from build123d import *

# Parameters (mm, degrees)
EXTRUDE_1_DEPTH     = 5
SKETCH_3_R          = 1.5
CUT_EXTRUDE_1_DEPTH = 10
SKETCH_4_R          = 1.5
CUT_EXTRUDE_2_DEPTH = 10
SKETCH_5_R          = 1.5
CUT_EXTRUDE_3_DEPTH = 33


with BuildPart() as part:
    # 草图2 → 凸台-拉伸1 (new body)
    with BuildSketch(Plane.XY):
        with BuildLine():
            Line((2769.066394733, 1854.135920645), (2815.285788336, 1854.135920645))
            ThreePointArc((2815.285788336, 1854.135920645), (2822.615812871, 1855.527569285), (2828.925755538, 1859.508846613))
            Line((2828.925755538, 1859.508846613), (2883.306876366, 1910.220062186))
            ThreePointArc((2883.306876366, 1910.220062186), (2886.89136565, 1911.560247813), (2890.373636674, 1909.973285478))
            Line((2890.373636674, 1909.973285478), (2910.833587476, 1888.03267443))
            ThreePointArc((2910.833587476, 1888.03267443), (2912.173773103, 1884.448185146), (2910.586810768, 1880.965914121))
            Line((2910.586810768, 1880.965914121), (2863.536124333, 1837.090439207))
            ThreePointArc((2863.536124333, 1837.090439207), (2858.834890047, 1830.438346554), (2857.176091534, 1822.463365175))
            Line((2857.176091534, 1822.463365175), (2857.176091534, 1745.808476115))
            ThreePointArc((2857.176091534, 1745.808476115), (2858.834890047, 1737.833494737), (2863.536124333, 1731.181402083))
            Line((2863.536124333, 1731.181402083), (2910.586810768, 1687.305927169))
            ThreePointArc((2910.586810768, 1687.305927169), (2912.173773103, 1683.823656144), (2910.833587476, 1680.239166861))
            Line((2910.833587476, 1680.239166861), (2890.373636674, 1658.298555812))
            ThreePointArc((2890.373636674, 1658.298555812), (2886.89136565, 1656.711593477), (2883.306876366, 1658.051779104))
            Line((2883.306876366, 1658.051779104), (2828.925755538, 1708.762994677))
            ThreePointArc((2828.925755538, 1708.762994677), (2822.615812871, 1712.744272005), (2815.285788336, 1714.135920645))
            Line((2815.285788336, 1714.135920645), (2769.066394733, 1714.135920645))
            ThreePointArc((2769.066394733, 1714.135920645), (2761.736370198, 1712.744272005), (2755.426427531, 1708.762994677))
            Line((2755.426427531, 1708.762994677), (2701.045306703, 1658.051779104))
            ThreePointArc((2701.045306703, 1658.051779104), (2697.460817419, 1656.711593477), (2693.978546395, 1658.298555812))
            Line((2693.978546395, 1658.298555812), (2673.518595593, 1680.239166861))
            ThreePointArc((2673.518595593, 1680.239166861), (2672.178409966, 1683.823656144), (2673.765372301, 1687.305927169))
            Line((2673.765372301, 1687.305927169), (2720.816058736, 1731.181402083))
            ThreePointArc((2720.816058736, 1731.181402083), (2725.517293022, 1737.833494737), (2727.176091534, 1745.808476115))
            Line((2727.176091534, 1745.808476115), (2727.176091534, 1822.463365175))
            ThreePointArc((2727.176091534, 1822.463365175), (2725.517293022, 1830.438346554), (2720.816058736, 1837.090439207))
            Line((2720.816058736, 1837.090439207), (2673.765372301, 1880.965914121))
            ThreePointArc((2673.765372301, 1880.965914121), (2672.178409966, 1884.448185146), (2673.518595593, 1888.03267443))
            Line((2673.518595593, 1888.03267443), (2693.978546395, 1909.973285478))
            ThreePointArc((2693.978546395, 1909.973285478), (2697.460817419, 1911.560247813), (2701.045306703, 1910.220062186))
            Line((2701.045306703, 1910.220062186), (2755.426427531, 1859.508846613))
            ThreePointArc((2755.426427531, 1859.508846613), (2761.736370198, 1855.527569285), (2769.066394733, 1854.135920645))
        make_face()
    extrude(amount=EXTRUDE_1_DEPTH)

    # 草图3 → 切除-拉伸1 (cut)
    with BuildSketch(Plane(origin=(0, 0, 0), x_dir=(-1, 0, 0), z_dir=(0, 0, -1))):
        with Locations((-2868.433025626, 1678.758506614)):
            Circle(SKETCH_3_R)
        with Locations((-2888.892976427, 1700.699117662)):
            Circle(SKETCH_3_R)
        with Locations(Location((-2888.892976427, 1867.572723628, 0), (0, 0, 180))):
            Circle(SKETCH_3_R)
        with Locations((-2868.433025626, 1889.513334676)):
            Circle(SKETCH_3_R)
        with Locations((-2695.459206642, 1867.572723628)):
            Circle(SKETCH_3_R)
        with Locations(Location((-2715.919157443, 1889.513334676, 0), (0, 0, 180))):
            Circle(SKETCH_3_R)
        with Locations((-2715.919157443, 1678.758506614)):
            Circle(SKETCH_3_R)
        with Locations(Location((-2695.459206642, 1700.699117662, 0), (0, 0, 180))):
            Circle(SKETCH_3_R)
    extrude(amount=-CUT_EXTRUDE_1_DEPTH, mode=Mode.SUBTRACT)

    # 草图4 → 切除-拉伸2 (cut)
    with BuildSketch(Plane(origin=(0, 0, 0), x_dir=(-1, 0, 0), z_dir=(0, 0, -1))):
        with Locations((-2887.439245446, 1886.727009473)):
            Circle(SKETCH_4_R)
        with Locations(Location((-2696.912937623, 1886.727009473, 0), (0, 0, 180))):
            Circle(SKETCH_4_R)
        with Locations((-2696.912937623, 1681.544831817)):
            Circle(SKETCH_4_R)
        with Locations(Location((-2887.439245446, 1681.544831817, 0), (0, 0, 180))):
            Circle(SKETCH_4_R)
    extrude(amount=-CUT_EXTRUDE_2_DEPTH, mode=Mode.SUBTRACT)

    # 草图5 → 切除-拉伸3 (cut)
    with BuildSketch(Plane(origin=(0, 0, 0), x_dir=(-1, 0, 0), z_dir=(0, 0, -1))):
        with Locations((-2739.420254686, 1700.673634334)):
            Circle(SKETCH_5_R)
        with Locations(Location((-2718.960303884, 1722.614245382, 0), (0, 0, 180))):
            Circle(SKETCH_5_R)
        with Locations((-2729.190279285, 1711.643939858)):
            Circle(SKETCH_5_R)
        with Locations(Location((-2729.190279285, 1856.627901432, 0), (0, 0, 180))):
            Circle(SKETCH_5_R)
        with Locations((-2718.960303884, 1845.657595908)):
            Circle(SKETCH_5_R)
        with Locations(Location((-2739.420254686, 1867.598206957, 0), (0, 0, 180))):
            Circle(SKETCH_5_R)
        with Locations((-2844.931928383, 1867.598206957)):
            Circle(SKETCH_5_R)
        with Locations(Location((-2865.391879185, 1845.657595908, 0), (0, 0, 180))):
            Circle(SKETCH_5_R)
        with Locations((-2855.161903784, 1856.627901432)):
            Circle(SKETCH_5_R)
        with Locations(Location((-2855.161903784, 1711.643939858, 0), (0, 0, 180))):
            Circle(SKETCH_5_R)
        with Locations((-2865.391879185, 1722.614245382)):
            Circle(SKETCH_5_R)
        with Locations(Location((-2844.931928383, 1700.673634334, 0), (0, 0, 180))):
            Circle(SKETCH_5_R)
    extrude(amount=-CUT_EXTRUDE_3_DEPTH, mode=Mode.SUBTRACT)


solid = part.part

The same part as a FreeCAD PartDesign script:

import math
import FreeCAD as App
import Part
import Sketcher
Q = App.Units.Quantity

doc = App.newDocument("Part")
params = doc.addObject("Spreadsheet::Sheet", "Params")
for row, (alias, value) in enumerate([
    ("sketch1_radius", "20 mm"),
    ("sketch1_radius2", "5 mm"),
    ("sketch1_length", "30 mm"),
    ("pad1_length", "5 mm"),
    ("sketch2_diameter", "3 mm"),
    ("pocket1_length", "10 mm"),
    ("sketch3_diameter", "3 mm"),
    ("pocket2_length", "10 mm"),
    ("sketch4_diameter", "3 mm"),
    ("pocket3_length", "33 mm"),
], start=1):
    params.set(f"A{row}", alias)
    params.set(f"B{row}", "=" + value)
    params.setAlias(f"B{row}", alias)

body = doc.addObject("PartDesign::Body", "Body")

# Sketch on XY plane
sketch1 = doc.addObject("Sketcher::SketchObject", "Sketch")
body.addObject(sketch1)
sketch1.AttachmentSupport = (doc.XY_Plane, [""])
sketch1.MapMode = "FlatFace"
sketch1.addGeometry([
    Part.LineSegment(App.Vector(2815.3, 1854.1, 0), App.Vector(2769.1, 1854.1, 0)),  # 0
    Part.ArcOfCircle(Part.Circle(App.Vector(2769.1, 1874.1, 0), App.Vector(0, 0, 1), 20), math.radians(-133), math.radians(-90)),  # 1
    Part.LineSegment(App.Vector(2755.4, 1859.5, 0), App.Vector(2701, 1910.2, 0)),  # 2
    Part.ArcOfCircle(Part.Circle(App.Vector(2697.6, 1906.6, 0), App.Vector(0, 0, 1), 5), math.radians(47), math.radians(137)),  # 3
    Part.LineSegment(App.Vector(2694, 1910, 0), App.Vector(2673.5, 1888, 0)),  # 4
    Part.ArcOfCircle(Part.Circle(App.Vector(2677.2, 1884.6, 0), App.Vector(0, 0, 1), 5), math.radians(137), math.radians(227)),  # 5
    Part.LineSegment(App.Vector(2673.8, 1881, 0), App.Vector(2720.8, 1837.1, 0)),  # 6
    Part.ArcOfCircle(Part.Circle(App.Vector(2707.2, 1822.5, 0), App.Vector(0, 0, 1), 20), math.radians(0), math.radians(47)),  # 7
    Part.LineSegment(App.Vector(2727.2, 1822.5, 0), App.Vector(2727.2, 1745.8, 0)),  # 8
    Part.ArcOfCircle(Part.Circle(App.Vector(2707.2, 1745.8, 0), App.Vector(0, 0, 1), 20), math.radians(-47), math.radians(0)),  # 9
    Part.LineSegment(App.Vector(2720.8, 1731.2, 0), App.Vector(2673.8, 1687.3, 0)),  # 10
    Part.ArcOfCircle(Part.Circle(App.Vector(2677.2, 1683.6, 0), App.Vector(0, 0, 1), 5), math.radians(133), math.radians(223)),  # 11
    Part.LineSegment(App.Vector(2673.5, 1680.2, 0), App.Vector(2694, 1658.3, 0)),  # 12
    Part.ArcOfCircle(Part.Circle(App.Vector(2697.6, 1661.7, 0), App.Vector(0, 0, 1), 5), math.radians(-137), math.radians(-47)),  # 13
    Part.LineSegment(App.Vector(2701, 1658.1, 0), App.Vector(2755.4, 1708.8, 0)),  # 14
    Part.ArcOfCircle(Part.Circle(App.Vector(2769.1, 1694.1, 0), App.Vector(0, 0, 1), 20), math.radians(90), math.radians(133)),  # 15
    Part.LineSegment(App.Vector(2769.1, 1714.1, 0), App.Vector(2815.3, 1714.1, 0)),  # 16
    Part.ArcOfCircle(Part.Circle(App.Vector(2815.3, 1694.1, 0), App.Vector(0, 0, 1), 20), math.radians(47), math.radians(90)),  # 17
    Part.LineSegment(App.Vector(2828.9, 1708.8, 0), App.Vector(2883.3, 1658.1, 0)),  # 18
    Part.ArcOfCircle(Part.Circle(App.Vector(2886.7, 1661.7, 0), App.Vector(0, 0, 1), 5), math.radians(-133), math.radians(-43)),  # 19
    Part.LineSegment(App.Vector(2890.4, 1658.3, 0), App.Vector(2910.8, 1680.2, 0)),  # 20
    Part.ArcOfCircle(Part.Circle(App.Vector(2907.2, 1683.6, 0), App.Vector(0, 0, 1), 5), math.radians(-43), math.radians(47)),  # 21
    Part.LineSegment(App.Vector(2910.6, 1687.3, 0), App.Vector(2863.5, 1731.2, 0)),  # 22
    Part.ArcOfCircle(Part.Circle(App.Vector(2877.2, 1745.8, 0), App.Vector(0, 0, 1), 20), math.radians(-180), math.radians(-133)),  # 23
    Part.LineSegment(App.Vector(2857.2, 1745.8, 0), App.Vector(2857.2, 1822.5, 0)),  # 24
    Part.ArcOfCircle(Part.Circle(App.Vector(2877.2, 1822.5, 0), App.Vector(0, 0, 1), 20), math.radians(133), math.radians(180)),  # 25
    Part.LineSegment(App.Vector(2863.5, 1837.1, 0), App.Vector(2910.6, 1881, 0)),  # 26
    Part.ArcOfCircle(Part.Circle(App.Vector(2907.2, 1884.6, 0), App.Vector(0, 0, 1), 5), math.radians(-47), math.radians(43)),  # 27
    Part.LineSegment(App.Vector(2910.8, 1888, 0), App.Vector(2890.4, 1910, 0)),  # 28
    Part.ArcOfCircle(Part.Circle(App.Vector(2886.7, 1906.6, 0), App.Vector(0, 0, 1), 5), math.radians(43), math.radians(133)),  # 29
    Part.LineSegment(App.Vector(2883.3, 1910.2, 0), App.Vector(2828.9, 1859.5, 0)),  # 30
    Part.ArcOfCircle(Part.Circle(App.Vector(2815.3, 1874.1, 0), App.Vector(0, 0, 1), 20), math.radians(-90), math.radians(-47)),  # 31
], False)
sketch1.addConstraint([
    Sketcher.Constraint("Tangent", 0, 2, 1, 2),
    Sketcher.Constraint("Tangent", 1, 1, 2, 1),
    Sketcher.Constraint("Tangent", 2, 2, 3, 1),
    Sketcher.Constraint("Tangent", 3, 2, 4, 1),
    Sketcher.Constraint("Tangent", 4, 2, 5, 1),
    Sketcher.Constraint("Tangent", 5, 2, 6, 1),
    Sketcher.Constraint("Tangent", 6, 2, 7, 2),
    Sketcher.Constraint("Tangent", 7, 1, 8, 1),
    Sketcher.Constraint("Tangent", 8, 2, 9, 2),
    Sketcher.Constraint("Tangent", 9, 1, 10, 1),
    Sketcher.Constraint("Tangent", 10, 2, 11, 1),
    Sketcher.Constraint("Tangent", 11, 2, 12, 1),
    Sketcher.Constraint("Tangent", 12, 2, 13, 1),
    Sketcher.Constraint("Tangent", 13, 2, 14, 1),
    Sketcher.Constraint("Tangent", 14, 2, 15, 2),
    Sketcher.Constraint("Tangent", 15, 1, 16, 1),
    Sketcher.Constraint("Tangent", 16, 2, 17, 2),
    Sketcher.Constraint("Tangent", 17, 1, 18, 1),
    Sketcher.Constraint("Tangent", 18, 2, 19, 1),
    Sketcher.Constraint("Tangent", 19, 2, 20, 1),
    Sketcher.Constraint("Tangent", 20, 2, 21, 1),
    Sketcher.Constraint("Tangent", 21, 2, 22, 1),
    Sketcher.Constraint("Tangent", 22, 2, 23, 2),
    Sketcher.Constraint("Tangent", 23, 1, 24, 1),
    Sketcher.Constraint("Tangent", 24, 2, 25, 2),
    Sketcher.Constraint("Tangent", 25, 1, 26, 1),
    Sketcher.Constraint("Tangent", 26, 2, 27, 1),
    Sketcher.Constraint("Tangent", 27, 2, 28, 1),
    Sketcher.Constraint("Tangent", 28, 2, 29, 1),
    Sketcher.Constraint("Tangent", 29, 2, 30, 1),
    Sketcher.Constraint("Tangent", 30, 2, 31, 2),
    Sketcher.Constraint("Tangent", 31, 1, 0, 1),
    Sketcher.Constraint("Horizontal", 0),
    Sketcher.Constraint("Vertical", 8),
    Sketcher.Constraint("Horizontal", 16),
    Sketcher.Constraint("Vertical", 24),
    Sketcher.Constraint("Equal", 3, 5),
    Sketcher.Constraint("Equal", 1, 7),
    Sketcher.Constraint("Equal", 7, 9),
    Sketcher.Constraint("Equal", 5, 11),
    Sketcher.Constraint("Equal", 11, 13),
    Sketcher.Constraint("Equal", 9, 15),
    Sketcher.Constraint("Equal", 15, 17),
    Sketcher.Constraint("Equal", 13, 19),
    Sketcher.Constraint("Equal", 19, 21),
    Sketcher.Constraint("Equal", 17, 23),
    Sketcher.Constraint("Equal", 23, 25),
    Sketcher.Constraint("Equal", 21, 27),
    Sketcher.Constraint("Equal", 27, 29),
    Sketcher.Constraint("Equal", 25, 31),
    Sketcher.Constraint("Perpendicular", 2, 4),
    Sketcher.Constraint("Perpendicular", 4, 6),
    Sketcher.Constraint("Perpendicular", 10, 12),
    Sketcher.Constraint("Perpendicular", 12, 14),
    Sketcher.Constraint("Parallel", 6, 18),
    Sketcher.Constraint("Perpendicular", 18, 20),
    Sketcher.Constraint("Perpendicular", 20, 22),
    Sketcher.Constraint("Parallel", 14, 26),
    Sketcher.Constraint("Perpendicular", 26, 28),
    Sketcher.Constraint("Perpendicular", 28, 30),
    Sketcher.Constraint("Horizontal", 13, 3, 19, 3),
    Sketcher.Constraint("Horizontal", 11, 3, 21, 3),
    Sketcher.Constraint("Horizontal", 9, 3, 23, 3),
    Sketcher.Constraint("Horizontal", 7, 3, 25, 3),
    Sketcher.Constraint("Horizontal", 5, 3, 27, 3),
    Sketcher.Constraint("Horizontal", 3, 3, 29, 3),
    Sketcher.Constraint("Horizontal", 14, 2, 17, 1),
    Sketcher.Constraint("Vertical", 5, 3, 11, 3),
    Sketcher.Constraint("Vertical", 3, 3, 13, 3),
    Sketcher.Constraint("Vertical", 1, 3, 15, 3),
    Sketcher.Constraint("Radius", 1, Q("20 mm")),
    Sketcher.Constraint("Radius", 3, Q("5 mm")),
    Sketcher.Constraint("Angle", 2, Q("137 deg")),
    Sketcher.Constraint("Distance", 4, Q("30 mm")),
    Sketcher.Constraint("DistanceY", 15, 3, 1, 3, Q("180 mm")),
    Sketcher.Constraint("Distance", 2, Q("74.3568 mm")),
    Sketcher.Constraint("DistanceY", 8, 2, 8, 1, Q("76.654889 mm")),
    Sketcher.Constraint("DistanceX", 0, 2, 0, 1, Q("46.219394 mm")),
    Sketcher.Constraint("DistanceY", -1, 1, 1, 3, Q("1874.135921 mm")),
    Sketcher.Constraint("DistanceX", -1, 1, 7, 3, Q("2707.176092 mm")),
])
sketch1.setExpression("Constraints[70]", "Params.sketch1_radius")
sketch1.setExpression("Constraints[71]", "Params.sketch1_radius2")
sketch1.setExpression("Constraints[73]", "Params.sketch1_length")
pad1 = doc.addObject("PartDesign::Pad", "Pad")
body.addObject(pad1)
pad1.Profile = sketch1
pad1.setExpression("Length", "Params.pad1_length")

# Sketch on XY plane
sketch2 = doc.addObject("Sketcher::SketchObject", "Sketch001")
body.addObject(sketch2)
sketch2.AttachmentSupport = (doc.XY_Plane, [""])
sketch2.MapMode = "FlatFace"
sketch2.addGeometry([
    Part.Circle(App.Vector(2868.4, 1678.8, 0), App.Vector(0, 0, 1), 1.5),  # 0
    Part.Circle(App.Vector(2888.9, 1700.7, 0), App.Vector(0, 0, 1), 1.5),  # 1
    Part.Circle(App.Vector(2888.9, 1867.6, 0), App.Vector(0, 0, 1), 1.5),  # 2
    Part.Circle(App.Vector(2868.4, 1889.5, 0), App.Vector(0, 0, 1), 1.5),  # 3
    Part.Circle(App.Vector(2695.5, 1867.6, 0), App.Vector(0, 0, 1), 1.5),  # 4
    Part.Circle(App.Vector(2715.9, 1889.5, 0), App.Vector(0, 0, 1), 1.5),  # 5
    Part.Circle(App.Vector(2715.9, 1678.8, 0), App.Vector(0, 0, 1), 1.5),  # 6
    Part.Circle(App.Vector(2695.5, 1700.7, 0), App.Vector(0, 0, 1), 1.5),  # 7
], False)
sketch2.addConstraint([
    Sketcher.Constraint("Equal", 0, 1),
    Sketcher.Constraint("Equal", 1, 2),
    Sketcher.Constraint("Equal", 2, 3),
    Sketcher.Constraint("Equal", 3, 4),
    Sketcher.Constraint("Equal", 4, 5),
    Sketcher.Constraint("Equal", 5, 6),
    Sketcher.Constraint("Equal", 6, 7),
    Sketcher.Constraint("Horizontal", 2, 3, 4, 3),
    Sketcher.Constraint("Horizontal", 3, 3, 5, 3),
    Sketcher.Constraint("Horizontal", 0, 3, 6, 3),
    Sketcher.Constraint("Horizontal", 1, 3, 7, 3),
    Sketcher.Constraint("Vertical", 1, 3, 2, 3),
    Sketcher.Constraint("Vertical", 0, 3, 3, 3),
    Sketcher.Constraint("Vertical", 5, 3, 6, 3),
    Sketcher.Constraint("Vertical", 4, 3, 7, 3),
    Sketcher.Constraint("Diameter", 0, Q("3 mm")),
    Sketcher.Constraint("DistanceX", 0, 3, 1, 3, Q("20.459951 mm")),
    Sketcher.Constraint("DistanceY", 0, 3, 1, 3, Q("21.940611 mm")),
    Sketcher.Constraint("DistanceY", 2, 3, 3, 3, Q("21.940611 mm")),
    Sketcher.Constraint("DistanceY", 0, 3, 3, 3, Q("210.754828 mm")),
    Sketcher.Constraint("DistanceX", 4, 3, 3, 3, Q("172.973819 mm")),
    Sketcher.Constraint("DistanceX", 4, 3, 5, 3, Q("20.459951 mm")),
    Sketcher.Constraint("DistanceX", -1, 1, 0, 3, Q("2868.433026 mm")),
    Sketcher.Constraint("DistanceY", -1, 1, 0, 3, Q("1678.758507 mm")),
])
sketch2.setExpression("Constraints[15]", "Params.sketch2_diameter")
pocket1 = doc.addObject("PartDesign::Pocket", "Pocket")
body.addObject(pocket1)
pocket1.Profile = sketch2
pocket1.setExpression("Length", "Params.pocket1_length")
pocket1.Reversed = True

# Sketch on XY plane
sketch3 = doc.addObject("Sketcher::SketchObject", "Sketch002")
body.addObject(sketch3)
sketch3.AttachmentSupport = (doc.XY_Plane, [""])
sketch3.MapMode = "FlatFace"
sketch3.addGeometry([
    Part.Circle(App.Vector(2887.4, 1886.7, 0), App.Vector(0, 0, 1), 1.5),
    Part.Circle(App.Vector(2696.9, 1886.7, 0), App.Vector(0, 0, 1), 1.5),
    Part.Circle(App.Vector(2696.9, 1681.5, 0), App.Vector(0, 0, 1), 1.5),
    Part.Circle(App.Vector(2887.4, 1681.5, 0), App.Vector(0, 0, 1), 1.5),
], False)
sketch3.addConstraint([
    Sketcher.Constraint("Equal", 0, 1),
    Sketcher.Constraint("Equal", 1, 2),
    Sketcher.Constraint("Equal", 2, 3),
    Sketcher.Constraint("Horizontal", 0, 3, 1, 3),
    Sketcher.Constraint("Horizontal", 2, 3, 3, 3),
    Sketcher.Constraint("Vertical", 1, 3, 2, 3),
    Sketcher.Constraint("Vertical", 0, 3, 3, 3),
    Sketcher.Constraint("Diameter", 0, Q("3 mm")),
    Sketcher.Constraint("DistanceY", -1, 1, 0, 3, Q("1886.727009 mm")),
    Sketcher.Constraint("DistanceY", -1, 1, 2, 3, Q("1681.544832 mm")),
    Sketcher.Constraint("DistanceX", -1, 1, 0, 3, Q("2887.439245 mm")),
    Sketcher.Constraint("DistanceX", -1, 1, 1, 3, Q("2696.912938 mm")),
])
sketch3.setExpression("Constraints[7]", "Params.sketch3_diameter")
pocket2 = doc.addObject("PartDesign::Pocket", "Pocket001")
body.addObject(pocket2)
pocket2.Profile = sketch3
pocket2.setExpression("Length", "Params.pocket2_length")
pocket2.Reversed = True

# Sketch on XY plane
sketch4 = doc.addObject("Sketcher::SketchObject", "Sketch003")
body.addObject(sketch4)
sketch4.AttachmentSupport = (doc.XY_Plane, [""])
sketch4.MapMode = "FlatFace"
sketch4.addGeometry([
    Part.Circle(App.Vector(2739.4, 1700.7, 0), App.Vector(0, 0, 1), 1.5),  # 0
    Part.Circle(App.Vector(2719, 1722.6, 0), App.Vector(0, 0, 1), 1.5),  # 1
    Part.Circle(App.Vector(2729.2, 1711.6, 0), App.Vector(0, 0, 1), 1.5),  # 2
    Part.Circle(App.Vector(2729.2, 1856.6, 0), App.Vector(0, 0, 1), 1.5),  # 3
    Part.Circle(App.Vector(2719, 1845.7, 0), App.Vector(0, 0, 1), 1.5),  # 4
    Part.Circle(App.Vector(2739.4, 1867.6, 0), App.Vector(0, 0, 1), 1.5),  # 5
    Part.Circle(App.Vector(2844.9, 1867.6, 0), App.Vector(0, 0, 1), 1.5),  # 6
    Part.Circle(App.Vector(2865.4, 1845.7, 0), App.Vector(0, 0, 1), 1.5),  # 7
    Part.Circle(App.Vector(2855.2, 1856.6, 0), App.Vector(0, 0, 1), 1.5),  # 8
    Part.Circle(App.Vector(2855.2, 1711.6, 0), App.Vector(0, 0, 1), 1.5),  # 9
    Part.Circle(App.Vector(2865.4, 1722.6, 0), App.Vector(0, 0, 1), 1.5),  # 10
    Part.Circle(App.Vector(2844.9, 1700.7, 0), App.Vector(0, 0, 1), 1.5),  # 11
], False)
sketch4.addConstraint([
    Sketcher.Constraint("Equal", 0, 1),
    Sketcher.Constraint("Equal", 1, 2),
    Sketcher.Constraint("Equal", 2, 3),
    Sketcher.Constraint("Equal", 3, 4),
    Sketcher.Constraint("Equal", 4, 5),
    Sketcher.Constraint("Equal", 5, 6),
    Sketcher.Constraint("Equal", 6, 7),
    Sketcher.Constraint("Equal", 7, 8),
    Sketcher.Constraint("Equal", 8, 9),
    Sketcher.Constraint("Equal", 9, 10),
    Sketcher.Constraint("Equal", 10, 11),
    Sketcher.Constraint("Horizontal", 5, 3, 6, 3),
    Sketcher.Constraint("Horizontal", 4, 3, 7, 3),
    Sketcher.Constraint("Horizontal", 3, 3, 8, 3),
    Sketcher.Constraint("Horizontal", 2, 3, 9, 3),
    Sketcher.Constraint("Horizontal", 1, 3, 10, 3),
    Sketcher.Constraint("Horizontal", 0, 3, 11, 3),
    Sketcher.Constraint("Vertical", 2, 3, 3, 3),
    Sketcher.Constraint("Vertical", 1, 3, 4, 3),
    Sketcher.Constraint("Vertical", 0, 3, 5, 3),
    Sketcher.Constraint("Vertical", 8, 3, 9, 3),
    Sketcher.Constraint("Vertical", 7, 3, 10, 3),
    Sketcher.Constraint("Vertical", 6, 3, 11, 3),
    Sketcher.Constraint("Diameter", 0, Q("3 mm")),
    Sketcher.Constraint("DistanceY", -1, 1, 3, 3, Q("1856.627901 mm")),
    Sketcher.Constraint("DistanceX", 3, 3, 7, 3, Q("136.2016 mm")),
    Sketcher.Constraint("DistanceX", 4, 3, 8, 3, Q("136.2016 mm")),
    Sketcher.Constraint("DistanceX", -1, 1, 2, 3, Q("2729.190279 mm")),
    Sketcher.Constraint("DistanceY", -1, 1, 2, 3, Q("1711.64394 mm")),
    Sketcher.Constraint("DistanceX", -1, 1, 6, 3, Q("2844.931928 mm")),
    Sketcher.Constraint("DistanceX", 1, 3, 0, 3, Q("20.459951 mm")),
    Sketcher.Constraint("DistanceY", 0, 3, 1, 3, Q("21.940611 mm")),
    Sketcher.Constraint("DistanceY", 1, 3, 4, 3, Q("123.043351 mm")),
    Sketcher.Constraint("DistanceY", 4, 3, 5, 3, Q("21.940611 mm")),
    Sketcher.Constraint("DistanceX", -1, 1, 0, 3, Q("2739.420255 mm")),
    Sketcher.Constraint("DistanceY", -1, 1, 0, 3, Q("1700.673634 mm")),
])
sketch4.setExpression("Constraints[23]", "Params.sketch4_diameter")
pocket3 = doc.addObject("PartDesign::Pocket", "Pocket002")
body.addObject(pocket3)
pocket3.Profile = sketch4
pocket3.setExpression("Length", "Params.pocket3_length")
pocket3.Reversed = True

doc.recompute()
